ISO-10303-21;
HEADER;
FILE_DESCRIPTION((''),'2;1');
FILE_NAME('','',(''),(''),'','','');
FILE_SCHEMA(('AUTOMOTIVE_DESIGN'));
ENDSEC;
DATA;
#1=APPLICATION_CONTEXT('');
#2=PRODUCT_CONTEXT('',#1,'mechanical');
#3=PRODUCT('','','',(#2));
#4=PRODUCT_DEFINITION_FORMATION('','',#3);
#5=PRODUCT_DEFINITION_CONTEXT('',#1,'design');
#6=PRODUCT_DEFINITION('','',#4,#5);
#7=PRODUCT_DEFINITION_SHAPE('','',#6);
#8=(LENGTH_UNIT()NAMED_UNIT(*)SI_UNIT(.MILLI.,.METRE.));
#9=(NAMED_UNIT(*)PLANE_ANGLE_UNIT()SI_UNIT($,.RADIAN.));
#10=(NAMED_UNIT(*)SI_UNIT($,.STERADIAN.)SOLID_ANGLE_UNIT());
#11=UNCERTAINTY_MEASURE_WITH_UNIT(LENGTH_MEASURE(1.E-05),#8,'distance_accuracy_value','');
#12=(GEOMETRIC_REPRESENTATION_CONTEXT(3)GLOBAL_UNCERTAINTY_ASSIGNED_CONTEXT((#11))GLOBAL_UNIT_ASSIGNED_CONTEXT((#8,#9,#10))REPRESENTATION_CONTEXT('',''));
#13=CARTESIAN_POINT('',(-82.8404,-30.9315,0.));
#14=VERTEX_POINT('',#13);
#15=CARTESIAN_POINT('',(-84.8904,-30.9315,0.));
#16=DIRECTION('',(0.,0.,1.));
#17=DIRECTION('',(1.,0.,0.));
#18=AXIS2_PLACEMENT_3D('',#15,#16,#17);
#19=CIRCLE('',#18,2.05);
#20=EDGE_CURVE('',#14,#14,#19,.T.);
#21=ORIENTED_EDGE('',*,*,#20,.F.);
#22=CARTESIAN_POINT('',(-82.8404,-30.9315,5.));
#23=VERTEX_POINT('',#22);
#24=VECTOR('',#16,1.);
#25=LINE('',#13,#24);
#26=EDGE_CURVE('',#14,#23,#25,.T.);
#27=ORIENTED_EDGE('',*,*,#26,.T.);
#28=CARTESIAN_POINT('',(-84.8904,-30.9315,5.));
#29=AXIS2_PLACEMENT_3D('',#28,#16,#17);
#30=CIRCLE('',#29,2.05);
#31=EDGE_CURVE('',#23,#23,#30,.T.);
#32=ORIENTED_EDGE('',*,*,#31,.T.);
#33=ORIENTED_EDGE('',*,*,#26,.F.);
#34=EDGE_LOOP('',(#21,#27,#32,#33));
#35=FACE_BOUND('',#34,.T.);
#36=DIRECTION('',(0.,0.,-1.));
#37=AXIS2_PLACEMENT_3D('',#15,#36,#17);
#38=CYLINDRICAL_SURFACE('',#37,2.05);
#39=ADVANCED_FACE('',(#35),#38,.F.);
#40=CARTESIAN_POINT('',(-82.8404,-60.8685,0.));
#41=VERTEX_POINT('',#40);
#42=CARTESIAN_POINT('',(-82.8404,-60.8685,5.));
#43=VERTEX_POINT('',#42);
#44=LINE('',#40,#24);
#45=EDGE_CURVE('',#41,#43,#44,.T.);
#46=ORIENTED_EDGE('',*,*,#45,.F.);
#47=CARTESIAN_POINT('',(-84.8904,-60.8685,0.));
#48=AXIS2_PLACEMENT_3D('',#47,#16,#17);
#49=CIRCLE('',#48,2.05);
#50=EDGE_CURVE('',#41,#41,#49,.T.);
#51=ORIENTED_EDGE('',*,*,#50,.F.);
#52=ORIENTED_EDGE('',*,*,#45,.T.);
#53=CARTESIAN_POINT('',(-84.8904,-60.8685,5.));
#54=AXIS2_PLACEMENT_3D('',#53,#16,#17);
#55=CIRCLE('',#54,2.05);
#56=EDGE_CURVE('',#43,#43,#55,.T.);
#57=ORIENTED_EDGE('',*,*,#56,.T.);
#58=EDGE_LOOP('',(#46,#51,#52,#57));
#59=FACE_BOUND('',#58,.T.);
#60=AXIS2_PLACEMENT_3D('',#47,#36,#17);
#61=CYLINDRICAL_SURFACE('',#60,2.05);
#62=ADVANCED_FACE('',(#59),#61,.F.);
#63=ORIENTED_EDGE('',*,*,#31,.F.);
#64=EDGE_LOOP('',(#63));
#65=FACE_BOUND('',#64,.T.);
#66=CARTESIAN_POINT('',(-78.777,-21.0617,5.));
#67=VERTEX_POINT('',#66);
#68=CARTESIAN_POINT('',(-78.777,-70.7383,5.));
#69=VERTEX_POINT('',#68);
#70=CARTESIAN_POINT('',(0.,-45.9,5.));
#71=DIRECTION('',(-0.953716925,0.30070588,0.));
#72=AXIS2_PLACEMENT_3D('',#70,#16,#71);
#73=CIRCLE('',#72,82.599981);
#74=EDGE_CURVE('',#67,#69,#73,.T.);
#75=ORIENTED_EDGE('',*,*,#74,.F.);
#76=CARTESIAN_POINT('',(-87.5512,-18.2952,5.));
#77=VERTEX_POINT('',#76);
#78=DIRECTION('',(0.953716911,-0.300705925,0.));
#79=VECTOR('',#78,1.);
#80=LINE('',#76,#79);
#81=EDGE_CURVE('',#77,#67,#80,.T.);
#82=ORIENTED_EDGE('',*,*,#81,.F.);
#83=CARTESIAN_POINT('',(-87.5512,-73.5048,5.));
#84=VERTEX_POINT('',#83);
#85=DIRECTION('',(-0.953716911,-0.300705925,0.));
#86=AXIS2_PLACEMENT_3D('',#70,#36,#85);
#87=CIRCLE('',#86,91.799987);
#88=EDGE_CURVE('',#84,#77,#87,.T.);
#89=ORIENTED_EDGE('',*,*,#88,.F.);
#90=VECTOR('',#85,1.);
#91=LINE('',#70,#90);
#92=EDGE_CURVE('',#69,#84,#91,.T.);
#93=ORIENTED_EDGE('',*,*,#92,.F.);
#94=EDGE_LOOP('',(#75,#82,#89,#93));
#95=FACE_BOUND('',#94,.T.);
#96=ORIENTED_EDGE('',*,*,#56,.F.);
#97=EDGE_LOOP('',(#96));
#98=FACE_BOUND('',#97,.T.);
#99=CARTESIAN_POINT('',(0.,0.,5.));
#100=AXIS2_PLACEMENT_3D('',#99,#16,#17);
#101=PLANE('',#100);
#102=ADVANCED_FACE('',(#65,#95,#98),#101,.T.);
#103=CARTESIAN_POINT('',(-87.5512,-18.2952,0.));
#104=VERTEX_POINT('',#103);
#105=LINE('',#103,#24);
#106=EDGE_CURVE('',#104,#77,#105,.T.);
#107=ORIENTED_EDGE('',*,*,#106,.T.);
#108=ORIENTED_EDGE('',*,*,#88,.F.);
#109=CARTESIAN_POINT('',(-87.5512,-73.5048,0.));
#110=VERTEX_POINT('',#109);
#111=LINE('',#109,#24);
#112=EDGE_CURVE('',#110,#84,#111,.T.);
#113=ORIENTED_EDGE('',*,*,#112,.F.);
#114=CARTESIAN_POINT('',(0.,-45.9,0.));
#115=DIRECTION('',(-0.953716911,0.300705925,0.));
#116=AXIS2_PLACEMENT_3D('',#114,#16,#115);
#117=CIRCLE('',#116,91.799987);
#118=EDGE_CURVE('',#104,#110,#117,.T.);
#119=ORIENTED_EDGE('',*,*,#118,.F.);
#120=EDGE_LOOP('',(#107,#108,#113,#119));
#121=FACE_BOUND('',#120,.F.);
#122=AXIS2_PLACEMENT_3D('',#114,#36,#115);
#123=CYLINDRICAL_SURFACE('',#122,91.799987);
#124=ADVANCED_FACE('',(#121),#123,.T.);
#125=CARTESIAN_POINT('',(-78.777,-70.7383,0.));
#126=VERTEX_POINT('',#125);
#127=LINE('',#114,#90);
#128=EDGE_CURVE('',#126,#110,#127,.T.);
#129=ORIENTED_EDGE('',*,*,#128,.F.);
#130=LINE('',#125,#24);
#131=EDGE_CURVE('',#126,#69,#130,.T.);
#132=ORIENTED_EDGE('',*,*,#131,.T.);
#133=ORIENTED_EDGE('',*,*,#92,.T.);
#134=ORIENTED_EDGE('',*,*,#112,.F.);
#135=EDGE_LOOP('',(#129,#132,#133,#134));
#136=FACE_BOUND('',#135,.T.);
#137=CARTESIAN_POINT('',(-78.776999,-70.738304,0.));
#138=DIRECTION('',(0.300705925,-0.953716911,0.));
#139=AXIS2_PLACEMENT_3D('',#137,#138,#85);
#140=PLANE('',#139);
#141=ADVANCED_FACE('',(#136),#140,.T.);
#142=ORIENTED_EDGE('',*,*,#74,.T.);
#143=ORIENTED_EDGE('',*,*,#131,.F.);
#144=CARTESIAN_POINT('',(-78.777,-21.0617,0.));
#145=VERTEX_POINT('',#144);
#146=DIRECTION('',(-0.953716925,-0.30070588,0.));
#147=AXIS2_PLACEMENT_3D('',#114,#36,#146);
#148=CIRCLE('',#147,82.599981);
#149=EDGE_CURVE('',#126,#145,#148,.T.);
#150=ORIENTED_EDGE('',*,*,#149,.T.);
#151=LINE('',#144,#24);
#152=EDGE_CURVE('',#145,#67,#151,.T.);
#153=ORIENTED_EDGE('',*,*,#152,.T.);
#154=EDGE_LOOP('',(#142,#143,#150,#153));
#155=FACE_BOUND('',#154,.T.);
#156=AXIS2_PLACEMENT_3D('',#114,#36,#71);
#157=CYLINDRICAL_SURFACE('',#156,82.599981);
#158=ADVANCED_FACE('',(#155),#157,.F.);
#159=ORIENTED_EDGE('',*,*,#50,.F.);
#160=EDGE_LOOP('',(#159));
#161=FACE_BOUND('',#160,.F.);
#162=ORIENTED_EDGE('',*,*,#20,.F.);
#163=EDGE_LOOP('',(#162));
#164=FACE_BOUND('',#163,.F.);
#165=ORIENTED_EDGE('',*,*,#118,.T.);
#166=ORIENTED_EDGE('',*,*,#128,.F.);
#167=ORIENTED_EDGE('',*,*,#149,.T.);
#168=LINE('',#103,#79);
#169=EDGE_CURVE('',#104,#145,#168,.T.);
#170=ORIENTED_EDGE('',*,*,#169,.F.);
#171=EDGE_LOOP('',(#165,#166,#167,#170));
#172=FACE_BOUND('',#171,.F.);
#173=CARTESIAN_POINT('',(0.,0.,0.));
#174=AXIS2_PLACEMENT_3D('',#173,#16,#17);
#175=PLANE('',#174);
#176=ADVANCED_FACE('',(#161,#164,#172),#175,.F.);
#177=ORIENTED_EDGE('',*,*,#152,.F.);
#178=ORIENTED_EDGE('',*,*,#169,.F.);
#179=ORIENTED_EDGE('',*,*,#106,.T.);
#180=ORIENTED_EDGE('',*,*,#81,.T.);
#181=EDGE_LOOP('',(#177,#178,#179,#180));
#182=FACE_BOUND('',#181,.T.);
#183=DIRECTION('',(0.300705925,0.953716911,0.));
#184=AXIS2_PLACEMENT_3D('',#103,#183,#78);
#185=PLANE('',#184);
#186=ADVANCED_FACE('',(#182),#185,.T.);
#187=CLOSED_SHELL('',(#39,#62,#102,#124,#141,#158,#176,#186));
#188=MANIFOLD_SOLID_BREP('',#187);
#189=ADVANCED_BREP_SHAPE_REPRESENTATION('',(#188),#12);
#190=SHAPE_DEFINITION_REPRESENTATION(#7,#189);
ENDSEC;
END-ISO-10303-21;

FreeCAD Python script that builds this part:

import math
import FreeCAD as App
import Part
import Sketcher
Q = App.Units.Quantity

doc = App.newDocument("Part")
body = doc.addObject("PartDesign::Body", "Body")

# Sketch on XY plane
sketch1 = body.newObject("Sketcher::SketchObject", "Sketch")
sketch1.AttachmentSupport = (doc.getObject("XY_Plane"), [""])
sketch1.MapMode = "FlatFace"
sketch1.addGeometry(Part.LineSegment(App.Vector(-78.776999, -21.061696, 0), App.Vector(-87.5512, -18.2952, 0)), False)
sketch1.addGeometry(Part.ArcOfCircle(Part.Circle(App.Vector(0, -45.9, 0), App.Vector(0, 0, 1), 91.799987), math.radians(162.499992), math.radians(197.500008)), False)
sketch1.addGeometry(Part.LineSegment(App.Vector(-87.5512, -73.5048, 0), App.Vector(-78.776999, -70.738304, 0)), False)
sketch1.addGeometry(Part.ArcOfCircle(Part.Circle(App.Vector(0, -45.9, 0), App.Vector(0, 0, 1), 82.599981), math.radians(162.499995), math.radians(197.500005)), False)
sketch1.addGeometry(Part.Circle(App.Vector(-84.8904, -30.9315, 0), App.Vector(0, 0, 1), 2.05), False)
sketch1.addGeometry(Part.Circle(App.Vector(-84.8904, -60.8685, 0), App.Vector(0, 0, 1), 2.05), False)
sketch1.addConstraint(Sketcher.Constraint("Coincident", 0, 2, 1, 1))
sketch1.addConstraint(Sketcher.Constraint("Coincident", 1, 2, 2, 1))
sketch1.addConstraint(Sketcher.Constraint("Coincident", 2, 2, 3, 2))
sketch1.addConstraint(Sketcher.Constraint("Coincident", 3, 1, 0, 1))
sketch1.addConstraint(Sketcher.Constraint("Coincident", 3, 3, 1, 3))
sketch1.addConstraint(Sketcher.Constraint("Equal", 4, 5))
sketch1.addConstraint(Sketcher.Constraint("PointOnObject", 1, 3, -2))
sketch1.addConstraint(Sketcher.Constraint("Vertical", 4, 3, 5, 3))
sketch1.addConstraint(Sketcher.Constraint("Vertical", 0, 2, 1, 2))
sketch1.addConstraint(Sketcher.Constraint("Vertical", 2, 2, 3, 1))
sketch1.addConstraint(Sketcher.Constraint("Diameter", 4, Q("4.1 mm")))
sketch1.addConstraint(Sketcher.Constraint("Radius", 1, Q("91.8 mm")))
sketch1.addConstraint(Sketcher.Constraint("Radius", 3, Q("82.6 mm")))
sketch1.addConstraint(Sketcher.Constraint("Angle", 0, Q("162.5 deg")))
sketch1.addConstraint(Sketcher.Constraint("DistanceY", 1, 3, -1, 1, Q("45.9 mm")))
sketch1.addConstraint(Sketcher.Constraint("DistanceX", 2, 2, -1, 1, Q("78.777 mm")))
sketch1.addConstraint(Sketcher.Constraint("DistanceY", 5, 3, 4, 3, Q("29.937 mm")))
sketch1.addConstraint(Sketcher.Constraint("DistanceX", 4, 3, -1, 1, Q("84.8904 mm")))
sketch1.addConstraint(Sketcher.Constraint("DistanceY", 4, 3, -1, 1, Q("30.9315 mm")))
pad1 = body.newObject("PartDesign::Pad", "Pad")
pad1.Profile = sketch1
pad1.Length = 5

doc.recompute()
